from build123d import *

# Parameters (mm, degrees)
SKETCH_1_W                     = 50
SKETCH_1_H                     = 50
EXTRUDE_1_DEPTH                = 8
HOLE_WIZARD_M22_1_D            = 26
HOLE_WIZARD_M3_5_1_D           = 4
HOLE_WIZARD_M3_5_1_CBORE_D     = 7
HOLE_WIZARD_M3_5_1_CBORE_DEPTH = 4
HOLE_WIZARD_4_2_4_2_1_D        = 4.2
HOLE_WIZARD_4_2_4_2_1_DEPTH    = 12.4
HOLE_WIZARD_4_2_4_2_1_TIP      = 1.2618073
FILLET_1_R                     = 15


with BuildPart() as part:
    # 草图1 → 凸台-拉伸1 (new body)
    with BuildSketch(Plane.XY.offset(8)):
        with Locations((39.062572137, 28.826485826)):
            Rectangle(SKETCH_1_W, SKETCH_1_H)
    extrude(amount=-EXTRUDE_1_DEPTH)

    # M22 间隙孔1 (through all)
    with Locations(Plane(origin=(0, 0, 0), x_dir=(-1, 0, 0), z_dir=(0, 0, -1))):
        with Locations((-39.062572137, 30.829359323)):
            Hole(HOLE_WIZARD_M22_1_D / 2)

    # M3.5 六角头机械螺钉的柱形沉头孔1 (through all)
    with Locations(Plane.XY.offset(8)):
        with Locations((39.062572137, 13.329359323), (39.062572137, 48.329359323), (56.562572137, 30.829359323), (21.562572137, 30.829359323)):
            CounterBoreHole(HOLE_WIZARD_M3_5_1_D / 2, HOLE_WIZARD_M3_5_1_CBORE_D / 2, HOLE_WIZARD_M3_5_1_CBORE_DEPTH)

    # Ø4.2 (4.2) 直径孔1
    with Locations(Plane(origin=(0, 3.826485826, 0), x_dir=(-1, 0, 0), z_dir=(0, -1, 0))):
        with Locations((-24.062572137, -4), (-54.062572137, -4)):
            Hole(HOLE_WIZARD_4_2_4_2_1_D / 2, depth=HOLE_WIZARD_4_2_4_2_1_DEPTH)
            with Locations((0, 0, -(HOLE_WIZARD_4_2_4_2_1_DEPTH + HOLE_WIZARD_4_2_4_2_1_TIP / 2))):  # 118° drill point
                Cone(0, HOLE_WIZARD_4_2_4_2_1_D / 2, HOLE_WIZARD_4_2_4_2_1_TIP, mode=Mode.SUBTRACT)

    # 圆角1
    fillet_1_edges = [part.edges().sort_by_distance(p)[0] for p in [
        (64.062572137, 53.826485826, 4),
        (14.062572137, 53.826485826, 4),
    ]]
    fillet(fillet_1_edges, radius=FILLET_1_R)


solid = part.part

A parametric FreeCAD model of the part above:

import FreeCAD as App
import Part
import Sketcher


def edges_at(feature, points):
    """Names of the edges that pass closest to the given points."""
    edges = feature.Shape.Edges
    near = lambda p: min(range(len(edges)), key=lambda i: edges[i].distToShape(Part.Vertex(*p))[0])
    return sorted({f"Edge{near(p) + 1}" for p in points})

doc = App.newDocument("Part")
body = doc.addObject("PartDesign::Body", "Body")

sketch1 = body.newObject("Sketcher::SketchObject", "Sketch")
sketch1.AttachmentSupport = (doc.getObject("XY_Plane"), [""])
sketch1.MapMode = "FlatFace"
sketch1.AttachmentOffset = App.Placement(App.Vector(0, 0, 8), App.Rotation())
sketch1.addGeometry([
    Part.LineSegment(App.Vector(14, 54, 0), App.Vector(14, 4, 0)),
    Part.LineSegment(App.Vector(14, 4, 0), App.Vector(64, 4, 0)),
    Part.LineSegment(App.Vector(64, 4, 0), App.Vector(64, 54, 0)),
    Part.LineSegment(App.Vector(64, 54, 0), App.Vector(14, 54, 0)),
], False)
sketch1.addConstraint([
    Sketcher.Constraint("Coincident", 0, 2, 1, 1),
    Sketcher.Constraint("Coincident", 1, 2, 2, 1),
    Sketcher.Constraint("Coincident", 2, 2, 3, 1),
    Sketcher.Constraint("Coincident", 3, 2, 0, 1),
    Sketcher.Constraint("Vertical", 0),
    Sketcher.Constraint("Horizontal", 1),
    Sketcher.Constraint("Vertical", 2),
    Sketcher.Constraint("Horizontal", 3),
    Sketcher.Constraint("Equal", 3, 0),
    Sketcher.Constraint("DistanceX", 1, 1, 1, 2, 50.0),
    Sketcher.Constraint("DistanceX", -1, 1, 0, 2, 14.062572),
    Sketcher.Constraint("DistanceY", -1, 1, 0, 2, 3.826486),
])
pad1 = body.newObject("PartDesign::Pad", "Pad")
pad1.Profile = sketch1
pad1.Length = 8
pad1.Reversed = True

sketch2 = body.newObject("Sketcher::SketchObject", "Sketch001")
sketch2.AttachmentSupport = (doc.getObject("XY_Plane"), [""])
sketch2.MapMode = "FlatFace"
sketch2.addGeometry(Part.Circle(App.Vector(39, 31, 0), App.Vector(0, 0, 1), 13), False)
sketch2.addConstraint([
    Sketcher.Constraint("Diameter", 0, 26.0),
    Sketcher.Constraint("DistanceY", -1, 1, 0, 3, 30.829359),
    Sketcher.Constraint("DistanceX", -1, 1, 0, 3, 39.062572),
])
doc.recompute()
hole = body.newObject("PartDesign::Hole", "Hole")
hole.Profile = sketch2
hole.ThreadType = "None"
hole.Diameter = 26
hole.DepthType = "ThroughAll"
hole.Reversed = True

sketch3 = body.newObject("Sketcher::SketchObject", "Sketch002")
sketch3.AttachmentSupport = (doc.getObject("XY_Plane"), [""])
sketch3.MapMode = "FlatFace"
sketch3.AttachmentOffset = App.Placement(App.Vector(0, 0, 8), App.Rotation())
sketch3.addGeometry([
    Part.Circle(App.Vector(39.1, 13.3, 0), App.Vector(0, 0, 1), 2),
    Part.Circle(App.Vector(39.1, 48.3, 0), App.Vector(0, 0, 1), 2),
    Part.Circle(App.Vector(56.6, 30.8, 0), App.Vector(0, 0, 1), 2),
    Part.Circle(App.Vector(21.6, 30.8, 0), App.Vector(0, 0, 1), 2),
], False)
sketch3.addConstraint([
    Sketcher.Constraint("Equal", 0, 1),
    Sketcher.Constraint("Equal", 1, 2),
    Sketcher.Constraint("Equal", 2, 3),
    Sketcher.Constraint("Horizontal", 2, 3, 3, 3),
    Sketcher.Constraint("Vertical", 0, 3, 1, 3),
    Sketcher.Constraint("Diameter", 0, 4.0),
    Sketcher.Constraint("DistanceY", 0, 3, 1, 3, 35.0),
    Sketcher.Constraint("DistanceX", 3, 3, 2, 3, 35.0),
    Sketcher.Constraint("DistanceX", 0, 3, 2, 3, 17.5),
    Sketcher.Constraint("DistanceY", 0, 3, 2, 3, 17.5),
    Sketcher.Constraint("DistanceY", -1, 1, 0, 3, 13.329359),
    Sketcher.Constraint("DistanceX", -1, 1, 0, 3, 39.062572),
])
doc.recompute()
hole2 = body.newObject("PartDesign::Hole", "Hole001")
hole2.Profile = sketch3
hole2.ThreadType = "None"
hole2.Diameter = 4
hole2.DepthType = "ThroughAll"
hole2.HoleCutType = "Counterbore"
hole2.HoleCutDiameter = 7
hole2.HoleCutDepth = 4

sketch4 = body.newObject("Sketcher::SketchObject", "Sketch003")
sketch4.AttachmentSupport = (doc.getObject("XZ_Plane"), [""])
sketch4.MapMode = "FlatFace"
sketch4.AttachmentOffset = App.Placement(App.Vector(0, 0, -3.826486), App.Rotation())
sketch4.addGeometry([
    Part.Circle(App.Vector(24.1, 4, 0), App.Vector(0, 0, 1), 2.1),
    Part.Circle(App.Vector(54.1, 4, 0), App.Vector(0, 0, 1), 2.1),
], False)
sketch4.addConstraint([
    Sketcher.Constraint("Equal", 0, 1),
    Sketcher.Constraint("Horizontal", 0, 3, 1, 3),
    Sketcher.Constraint("Diameter", 0, 4.2),
    Sketcher.Constraint("DistanceY", -1, 1, 0, 3, 4.0),
    Sketcher.Constraint("DistanceX", 0, 3, 1, 3, 30.0),
    Sketcher.Constraint("DistanceX", -1, 1, 0, 3, 24.062572),
])
doc.recompute()
hole3 = body.newObject("PartDesign::Hole", "Hole002")
hole3.Profile = sketch4
hole3.ThreadType = "None"
hole3.Diameter = 4.2
hole3.DepthType = "Dimension"
hole3.Depth = 12.4
hole3.DrillPoint = "Angled"
hole3.DrillPointAngle = 118
doc.recompute()

fillet = body.newObject("PartDesign::Fillet", "Fillet")
fillet.Base = (hole3, edges_at(hole3, [(64.063, 53.826, 4), (14.063, 53.826, 4)]))
fillet.Radius = 15

doc.recompute()
